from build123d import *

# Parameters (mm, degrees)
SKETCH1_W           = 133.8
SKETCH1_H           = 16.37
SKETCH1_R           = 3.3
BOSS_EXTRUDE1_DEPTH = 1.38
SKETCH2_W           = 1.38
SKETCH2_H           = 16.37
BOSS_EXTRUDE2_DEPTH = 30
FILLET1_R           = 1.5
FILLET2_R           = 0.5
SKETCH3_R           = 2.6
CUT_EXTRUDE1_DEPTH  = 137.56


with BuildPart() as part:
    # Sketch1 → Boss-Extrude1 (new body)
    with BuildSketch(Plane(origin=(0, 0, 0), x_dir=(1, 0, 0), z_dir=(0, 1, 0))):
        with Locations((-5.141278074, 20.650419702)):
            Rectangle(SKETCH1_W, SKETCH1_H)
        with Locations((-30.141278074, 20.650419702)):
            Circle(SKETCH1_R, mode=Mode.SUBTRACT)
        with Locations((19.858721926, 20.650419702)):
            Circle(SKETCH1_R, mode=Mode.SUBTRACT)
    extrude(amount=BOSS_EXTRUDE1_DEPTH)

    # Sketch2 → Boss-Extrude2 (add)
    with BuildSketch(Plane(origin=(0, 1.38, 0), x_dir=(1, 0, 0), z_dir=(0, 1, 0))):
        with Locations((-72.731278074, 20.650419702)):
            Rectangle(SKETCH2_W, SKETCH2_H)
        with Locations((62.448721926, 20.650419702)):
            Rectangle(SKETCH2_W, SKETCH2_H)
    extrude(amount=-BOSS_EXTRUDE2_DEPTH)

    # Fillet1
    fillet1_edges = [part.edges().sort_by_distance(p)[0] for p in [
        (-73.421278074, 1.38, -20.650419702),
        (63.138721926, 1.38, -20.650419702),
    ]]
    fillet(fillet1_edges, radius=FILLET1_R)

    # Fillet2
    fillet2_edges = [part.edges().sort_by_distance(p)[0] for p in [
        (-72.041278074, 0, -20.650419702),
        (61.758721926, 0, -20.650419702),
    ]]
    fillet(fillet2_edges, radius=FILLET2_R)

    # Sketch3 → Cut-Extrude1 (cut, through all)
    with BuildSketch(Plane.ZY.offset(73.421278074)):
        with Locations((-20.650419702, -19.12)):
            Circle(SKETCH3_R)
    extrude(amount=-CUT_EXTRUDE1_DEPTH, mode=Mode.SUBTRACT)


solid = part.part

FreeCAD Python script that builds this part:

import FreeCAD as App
import Part
import Sketcher


def edges_at(feature, points):
    """Names of the edges that pass closest to the given points."""
    edges = feature.Shape.Edges
    near = lambda p: min(range(len(edges)), key=lambda i: edges[i].distToShape(Part.Vertex(*p))[0])
    return sorted({f"Edge{near(p) + 1}" for p in points})

doc = App.newDocument("Part")
body = doc.addObject("PartDesign::Body", "Body")

sketch1 = body.newObject("Sketcher::SketchObject", "Sketch")
sketch1.AttachmentSupport = (doc.getObject("XZ_Plane"), [""])
sketch1.MapMode = "FlatFace"
sketch1.addGeometry([
    Part.LineSegment(App.Vector(-72, -28.8, 0), App.Vector(-72, -12.5, 0)),
    Part.LineSegment(App.Vector(-72, -12.5, 0), App.Vector(61.8, -12.5, 0)),
    Part.LineSegment(App.Vector(61.8, -12.5, 0), App.Vector(61.8, -28.8, 0)),
    Part.LineSegment(App.Vector(61.8, -28.8, 0), App.Vector(-72, -28.8, 0)),
    Part.Circle(App.Vector(-30.1, -20.7, 0), App.Vector(0, 0, 1), 3.3),
    Part.Circle(App.Vector(19.9, -20.7, 0), App.Vector(0, 0, 1), 3.3),
], False)
sketch1.addConstraint([
    Sketcher.Constraint("Coincident", 0, 2, 1, 1),
    Sketcher.Constraint("Coincident", 1, 2, 2, 1),
    Sketcher.Constraint("Coincident", 2, 2, 3, 1),
    Sketcher.Constraint("Coincident", 3, 2, 0, 1),
    Sketcher.Constraint("Vertical", 0),
    Sketcher.Constraint("Horizontal", 1),
    Sketcher.Constraint("Vertical", 2),
    Sketcher.Constraint("Horizontal", 3),
    Sketcher.Constraint("Equal", 4, 5),
    Sketcher.Constraint("Horizontal", 4, 3, 5, 3),
    Sketcher.Constraint("Diameter", 4, 6.6),
    Sketcher.Constraint("DistanceX", 1, 1, 1, 2, 133.8),
    Sketcher.Constraint("DistanceX", 4, 3, 5, 3, 50.0),
    Sketcher.Constraint("DistanceY", 0, 1, 0, 2, 16.37),
    Sketcher.Constraint("DistanceX", 0, 2, 4, 3, 41.9),
    Sketcher.Constraint("DistanceY", 4, 3, 0, 2, 8.185),
    Sketcher.Constraint("DistanceX", 4, 3, -1, 1, 30.141278),
    Sketcher.Constraint("DistanceY", 4, 3, -1, 1, 20.65042),
])
pad1 = body.newObject("PartDesign::Pad", "Pad")
pad1.Profile = sketch1
pad1.Length = 1.38
pad1.Reversed = True

sketch2 = body.newObject("Sketcher::SketchObject", "Sketch001")
sketch2.AttachmentSupport = (doc.getObject("XZ_Plane"), [""])
sketch2.MapMode = "FlatFace"
sketch2.AttachmentOffset = App.Placement(App.Vector(0, 0, -1.38), App.Rotation())
sketch2.addGeometry([
    Part.LineSegment(App.Vector(-73.4, -28.8, 0), App.Vector(-73.4, -12.5, 0)),
    Part.LineSegment(App.Vector(-73.4, -12.5, 0), App.Vector(-72, -12.5, 0)),
    Part.LineSegment(App.Vector(-72, -12.5, 0), App.Vector(-72, -28.8, 0)),
    Part.LineSegment(App.Vector(-72, -28.8, 0), App.Vector(-73.4, -28.8, 0)),
    Part.LineSegment(App.Vector(61.8, -28.8, 0), App.Vector(61.8, -12.5, 0)),
    Part.LineSegment(App.Vector(61.8, -12.5, 0), App.Vector(63.1, -12.5, 0)),
    Part.LineSegment(App.Vector(63.1, -12.5, 0), App.Vector(63.1, -28.8, 0)),
    Part.LineSegment(App.Vector(63.1, -28.8, 0), App.Vector(61.8, -28.8, 0)),
], False)
sketch2.addConstraint([
    Sketcher.Constraint("Coincident", 0, 2, 1, 1),
    Sketcher.Constraint("Coincident", 1, 2, 2, 1),
    Sketcher.Constraint("Coincident", 2, 2, 3, 1),
    Sketcher.Constraint("Coincident", 3, 2, 0, 1),
    Sketcher.Constraint("Coincident", 4, 2, 5, 1),
    Sketcher.Constraint("Coincident", 5, 2, 6, 1),
    Sketcher.Constraint("Coincident", 6, 2, 7, 1),
    Sketcher.Constraint("Coincident", 7, 2, 4, 1),
    Sketcher.Constraint("Vertical", 0),
    Sketcher.Constraint("Horizontal", 1),
    Sketcher.Constraint("Vertical", 2),
    Sketcher.Constraint("Horizontal", 3),
    Sketcher.Constraint("Vertical", 4),
    Sketcher.Constraint("Horizontal", 5),
    Sketcher.Constraint("Vertical", 6),
    Sketcher.Constraint("Horizontal", 7),
    Sketcher.Constraint("Horizontal", 1, 2, 4, 2),
    Sketcher.Constraint("Horizontal", 3, 2, 6, 2),
    Sketcher.Constraint("Equal", 3, 5),
    Sketcher.Constraint("DistanceX", 1, 1, 1, 2, 1.38),
    Sketcher.Constraint("DistanceY", 0, 1, 0, 2, 16.37),
    Sketcher.Constraint("DistanceX", 1, 2, 4, 2, 133.8),
    Sketcher.Constraint("DistanceX", 0, 2, -1, 1, 73.421278),
    Sketcher.Constraint("DistanceY", 0, 2, -1, 1, 12.46542),
])
pad2 = body.newObject("PartDesign::Pad", "Pad001")
pad2.Profile = sketch2
pad2.Length = 30
doc.recompute()

fillet = body.newObject("PartDesign::Fillet", "Fillet")
fillet.Base = (pad2, edges_at(pad2, [(-73.421, 1.38, -20.65), (63.139, 1.38, -20.65)]))
fillet.Radius = 1.5
doc.recompute()

fillet2 = body.newObject("PartDesign::Fillet", "Fillet001")
fillet2.Base = (fillet, edges_at(fillet, [(-72.041, 0, -20.65), (61.759, 0, -20.65)]))
fillet2.Radius = 0.5

sketch3 = body.newObject("Sketcher::SketchObject", "Sketch002")
sketch3.AttachmentSupport = (doc.getObject("YZ_Plane"), [""])
sketch3.MapMode = "FlatFace"
sketch3.AttachmentOffset = App.Placement(App.Vector(0, 0, -73.421278), App.Rotation())
sketch3.addGeometry(Part.Circle(App.Vector(-19.1, -20.7, 0), App.Vector(0, 0, 1), 2.6), False)
sketch3.addConstraint([
    Sketcher.Constraint("Diameter", 0, 5.2),
    Sketcher.Constraint("DistanceX", 0, 3, -1, 1, 19.12),
    Sketcher.Constraint("DistanceY", 0, 3, -1, 1, 20.65042),
])
pocket1 = body.newObject("PartDesign::Pocket", "Pocket")
pocket1.Profile = sketch3
pocket1.Type = "ThroughAll"
pocket1.Reversed = True

doc.recompute()
